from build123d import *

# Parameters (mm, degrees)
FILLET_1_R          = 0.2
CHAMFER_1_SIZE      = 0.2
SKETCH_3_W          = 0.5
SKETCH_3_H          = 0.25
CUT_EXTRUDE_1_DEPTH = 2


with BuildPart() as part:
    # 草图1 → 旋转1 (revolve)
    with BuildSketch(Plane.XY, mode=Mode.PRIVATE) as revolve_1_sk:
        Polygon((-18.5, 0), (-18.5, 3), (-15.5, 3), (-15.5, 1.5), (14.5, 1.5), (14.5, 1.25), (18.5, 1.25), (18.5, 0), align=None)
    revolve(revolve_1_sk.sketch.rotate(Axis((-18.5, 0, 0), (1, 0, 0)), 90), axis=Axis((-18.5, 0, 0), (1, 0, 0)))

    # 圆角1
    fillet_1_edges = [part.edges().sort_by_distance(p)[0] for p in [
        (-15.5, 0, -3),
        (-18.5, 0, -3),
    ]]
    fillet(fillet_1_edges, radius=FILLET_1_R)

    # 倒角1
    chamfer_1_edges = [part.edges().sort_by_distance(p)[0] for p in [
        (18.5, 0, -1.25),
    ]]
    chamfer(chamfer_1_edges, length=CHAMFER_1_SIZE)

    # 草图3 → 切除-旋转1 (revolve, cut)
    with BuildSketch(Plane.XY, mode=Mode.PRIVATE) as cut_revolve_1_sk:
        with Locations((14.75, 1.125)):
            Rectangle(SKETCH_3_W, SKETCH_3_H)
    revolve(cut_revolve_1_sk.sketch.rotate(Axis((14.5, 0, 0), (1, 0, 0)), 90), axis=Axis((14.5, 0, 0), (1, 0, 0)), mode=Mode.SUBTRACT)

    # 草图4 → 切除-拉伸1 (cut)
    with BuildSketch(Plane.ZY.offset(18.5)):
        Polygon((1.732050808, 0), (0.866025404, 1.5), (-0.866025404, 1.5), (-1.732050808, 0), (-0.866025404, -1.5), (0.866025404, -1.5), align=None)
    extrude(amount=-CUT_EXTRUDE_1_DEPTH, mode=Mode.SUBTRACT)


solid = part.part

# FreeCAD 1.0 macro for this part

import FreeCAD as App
import Part
import Sketcher
Q = App.Units.Quantity


def edges_at(feature, points):
    """Names of the edges that pass closest to the given points."""
    edges = feature.Shape.Edges
    near = lambda p: min(range(len(edges)), key=lambda i: edges[i].distToShape(Part.Vertex(*p))[0])
    return sorted({f"Edge{near(p) + 1}" for p in points})


def add_polygon(sketch, points):
    """Adds a closed chain of lines whose ends are joined by coincident constraints."""
    first, n = sketch.GeometryCount, len(points)
    for a, b in zip(points, points[1:] + points[:1]):
        sketch.addGeometry(Part.LineSegment(App.Vector(*a, 0), App.Vector(*b, 0)), False)
    for i in range(n):
        sketch.addConstraint(Sketcher.Constraint("Coincident", first + i, 2, first + (i + 1) % n, 1))

doc = App.newDocument("Part")
body = doc.addObject("PartDesign::Body", "Body")

# Sketch on XY plane
sketch1 = doc.addObject("Sketcher::SketchObject", "Sketch")
body.addObject(sketch1)
sketch1.AttachmentSupport = (doc.XY_Plane, [""])
sketch1.MapMode = "FlatFace"
add_polygon(sketch1, [(-18.5, 3), (-18.5, 0), (18.5, 0), (18.5, 1.25), (14.5, 1.25), (14.5, 1.5), (-15.5, 1.5), (-15.5, 3)])  # lines 0-7
sketch1.addConstraint([
    Sketcher.Constraint("Vertical", 0),
    Sketcher.Constraint("Horizontal", 1),
    Sketcher.Constraint("Vertical", 2),
    Sketcher.Constraint("Horizontal", 3),
    Sketcher.Constraint("Vertical", 4),
    Sketcher.Constraint("Horizontal", 5),
    Sketcher.Constraint("Vertical", 6),
    Sketcher.Constraint("Horizontal", 7),
    Sketcher.Constraint("Symmetric", 0, 2, 1, 2, -1, 1),
    Sketcher.Constraint("Equal", 7, 0),
    Sketcher.Constraint("DistanceX", 1, 1, 1, 2, 37.0),
    Sketcher.Constraint("DistanceX", 3, 2, 3, 1, 4.0),
    Sketcher.Constraint("DistanceX", 5, 2, 5, 1, 30.0),
    Sketcher.Constraint("DistanceY", 6, 1, 6, 2, 1.5),
    Sketcher.Constraint("DistanceY", 2, 1, 2, 2, 1.25),
])
revolution = doc.addObject("PartDesign::Revolution", "Revolution")
body.addObject(revolution)
revolution.Profile = sketch1
revolution.ReferenceAxis = (sketch1, ["H_Axis"])
revolution.Angle = 360
doc.recompute()

fillet = doc.addObject("PartDesign::Fillet", "Fillet")
body.addObject(fillet)
fillet.Base = (revolution, edges_at(revolution, [(-15.5, 0, -3), (-18.5, 0, -3)]))
fillet.Radius = 0.2
doc.recompute()

chamfer = doc.addObject("PartDesign::Chamfer", "Chamfer")
body.addObject(chamfer)
chamfer.Base = (fillet, edges_at(fillet, [(18.5, 0, -1.25)]))
chamfer.Size = 0.2

# Sketch on XY plane
sketch2 = doc.addObject("Sketcher::SketchObject", "Sketch001")
body.addObject(sketch2)
sketch2.AttachmentSupport = (doc.XY_Plane, [""])
sketch2.MapMode = "FlatFace"
add_polygon(sketch2, [(14.5, 1.25), (14.5, 1), (15, 1), (15, 1.25)])  # lines 0-3
sketch2.addConstraint([
    Sketcher.Constraint("Vertical", 0),
    Sketcher.Constraint("Horizontal", 1),
    Sketcher.Constraint("Vertical", 2),
    Sketcher.Constraint("Horizontal", 3),
    Sketcher.Constraint("DistanceX", 1, 1, 1, 2, 0.5),
    Sketcher.Constraint("DistanceY", -1, 1, 0, 2, 1.0),
    Sketcher.Constraint("DistanceX", -1, 1, 1, 2, 15.0),
    Sketcher.Constraint("DistanceY", 0, 2, 0, 1, 0.25),
])
groove = doc.addObject("PartDesign::Groove", "Groove")
body.addObject(groove)
groove.Profile = sketch2
groove.ReferenceAxis = (sketch2, ["H_Axis"])
groove.Angle = 360

# Sketch on YZ plane
sketch3 = doc.addObject("Sketcher::SketchObject", "Sketch002")
body.addObject(sketch3)
sketch3.AttachmentSupport = (doc.YZ_Plane, [""])
sketch3.MapMode = "FlatFace"
sketch3.AttachmentOffset = App.Placement(App.Vector(0, 0, -18.5), App.Rotation())
add_polygon(sketch3, [(0, 1.732051), (1.5, 0.866025), (1.5, -0.866025), (0, -1.732051), (-1.5, -0.866025), (-1.5, 0.866025)])  # lines 0-5
sketch3.addConstraint([
    Sketcher.Constraint("Vertical", 1),
    Sketcher.Constraint("Vertical", 4),
    Sketcher.Constraint("Symmetric", 0, 2, 3, 2, -1, 1),
    Sketcher.Constraint("Symmetric", 2, 2, 5, 2, -1, 1),
    Sketcher.Constraint("PointOnObject", 2, 2, -2),
    Sketcher.Constraint("Parallel", 2, 5),
    Sketcher.Constraint("Horizontal", 1, 2, 3, 2),
    Sketcher.Constraint("Angle", 0, Q("-30 deg")),
    Sketcher.Constraint("DistanceX", 3, 2, 1, 2, 3.0),
    Sketcher.Constraint("DistanceY", 1, 2, 1, 1, 1.732051),
])
pocket1 = doc.addObject("PartDesign::Pocket", "Pocket")
body.addObject(pocket1)
pocket1.Profile = sketch3
pocket1.Length = 2
pocket1.Reversed = True

doc.recompute()
